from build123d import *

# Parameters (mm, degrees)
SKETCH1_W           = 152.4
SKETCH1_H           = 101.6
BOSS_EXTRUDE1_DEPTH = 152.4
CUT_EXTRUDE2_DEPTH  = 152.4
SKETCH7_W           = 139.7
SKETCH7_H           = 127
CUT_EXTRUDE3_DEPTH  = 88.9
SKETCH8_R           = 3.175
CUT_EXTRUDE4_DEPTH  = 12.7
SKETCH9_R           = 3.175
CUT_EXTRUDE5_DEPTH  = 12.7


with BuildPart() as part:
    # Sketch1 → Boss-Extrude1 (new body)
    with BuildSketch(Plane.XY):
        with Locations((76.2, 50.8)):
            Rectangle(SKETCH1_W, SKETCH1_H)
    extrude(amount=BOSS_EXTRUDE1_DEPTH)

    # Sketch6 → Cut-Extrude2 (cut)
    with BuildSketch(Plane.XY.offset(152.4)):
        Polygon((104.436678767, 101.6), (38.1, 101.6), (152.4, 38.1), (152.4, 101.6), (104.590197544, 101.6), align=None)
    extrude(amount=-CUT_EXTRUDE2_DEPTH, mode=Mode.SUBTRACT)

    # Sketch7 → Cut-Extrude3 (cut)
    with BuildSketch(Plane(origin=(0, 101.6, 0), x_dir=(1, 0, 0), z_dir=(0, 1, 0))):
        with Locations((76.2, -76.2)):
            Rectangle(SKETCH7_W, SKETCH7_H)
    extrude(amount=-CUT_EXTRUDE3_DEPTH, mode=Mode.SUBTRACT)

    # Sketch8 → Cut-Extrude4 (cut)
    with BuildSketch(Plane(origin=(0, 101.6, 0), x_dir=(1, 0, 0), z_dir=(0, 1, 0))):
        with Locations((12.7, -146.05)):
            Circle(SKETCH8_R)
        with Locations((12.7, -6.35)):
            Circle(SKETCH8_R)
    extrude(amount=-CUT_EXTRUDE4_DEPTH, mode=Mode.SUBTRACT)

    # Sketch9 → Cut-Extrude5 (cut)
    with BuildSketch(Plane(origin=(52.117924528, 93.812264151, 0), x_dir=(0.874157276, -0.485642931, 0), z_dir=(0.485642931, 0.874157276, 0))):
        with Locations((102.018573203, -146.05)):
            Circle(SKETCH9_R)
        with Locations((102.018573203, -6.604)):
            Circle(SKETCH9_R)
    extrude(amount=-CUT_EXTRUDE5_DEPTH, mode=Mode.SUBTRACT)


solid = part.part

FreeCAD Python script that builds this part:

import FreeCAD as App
import Part
import Sketcher
from FreeCAD import Vector
Q = App.Units.Quantity


def add_polygon(sketch, points):
    """Adds a closed chain of lines whose ends are joined by coincident constraints."""
    first, n = sketch.GeometryCount, len(points)
    for a, b in zip(points, points[1:] + points[:1]):
        sketch.addGeometry(Part.LineSegment(App.Vector(*a, 0), App.Vector(*b, 0)), False)
    for i in range(n):
        sketch.addConstraint(Sketcher.Constraint("Coincident", first + i, 2, first + (i + 1) % n, 1))

doc = App.newDocument("Part")
body = doc.addObject("PartDesign::Body", "Body")

# Sketch on XY plane
sketch1 = body.newObject("Sketcher::SketchObject", "Sketch")
sketch1.AttachmentSupport = (doc.getObject("XY_Plane"), [""])
sketch1.MapMode = "FlatFace"
add_polygon(sketch1, [(0, 101.6), (0, 0), (152.4, 0), (152.4, 101.6)])  # lines 0-3
sketch1.addConstraint([
    Sketcher.Constraint("Vertical", 0),
    Sketcher.Constraint("Horizontal", 1),
    Sketcher.Constraint("Vertical", 2),
    Sketcher.Constraint("Horizontal", 3),
    Sketcher.Constraint("Coincident", 0, 2, -1, 1),
    Sketcher.Constraint("DistanceX", 1, 1, 1, 2, Q("6 in")),
    Sketcher.Constraint("DistanceY", 0, 2, 0, 1, Q("4 in")),
])
pad1 = body.newObject("PartDesign::Pad", "Pad")
pad1.Profile = sketch1
pad1.Length = Q("6 in")

# Sketch on XY plane
sketch2 = body.newObject("Sketcher::SketchObject", "Sketch001")
sketch2.AttachmentSupport = (doc.getObject("XY_Plane"), [""])
sketch2.MapMode = "FlatFace"
sketch2.AttachmentOffset = App.Placement(Vector(0, 0, 6 * 25.4), App.Rotation())
add_polygon(sketch2, [(38.1, 101.6), (152.4, 38.1), (152.4, 101.6)])  # lines 0-2
sketch2.addConstraint([
    Sketcher.Constraint("Vertical", 1),
    Sketcher.Constraint("Horizontal", 2),
    Sketcher.Constraint("DistanceX", 2, 2, 2, 1, Q("4.5 in")),
    Sketcher.Constraint("DistanceY", 1, 1, 1, 2, Q("2.5 in")),
    Sketcher.Constraint("DistanceX", -1, 1, 0, 2, Q("6 in")),
    Sketcher.Constraint("DistanceY", -1, 1, 1, 2, Q("4 in")),
])
pocket1 = body.newObject("PartDesign::Pocket", "Pocket")
pocket1.Profile = sketch2
pocket1.Length = Q("6 in")

# Sketch on XZ plane
sketch3 = body.newObject("Sketcher::SketchObject", "Sketch002")
sketch3.AttachmentSupport = (doc.getObject("XZ_Plane"), [""])
sketch3.MapMode = "FlatFace"
sketch3.AttachmentOffset = App.Placement(Vector(0, 0, -4 * 25.4), App.Rotation())
add_polygon(sketch3, [(6.35, 12.7), (6.35, 139.7), (146.05, 139.7), (146.05, 12.7)])  # lines 0-3
sketch3.addConstraint([
    Sketcher.Constraint("Vertical", 0),
    Sketcher.Constraint("Horizontal", 1),
    Sketcher.Constraint("Vertical", 2),
    Sketcher.Constraint("Horizontal", 3),
    Sketcher.Constraint("DistanceY", 0, 1, 0, 2, Q("5 in")),
    Sketcher.Constraint("DistanceX", 1, 1, 1, 2, Q("5.5 in")),
    Sketcher.Constraint("DistanceY", -1, 1, 0, 2, Q("5.5 in")),
    Sketcher.Constraint("DistanceX", -1, 1, 0, 2, Q("0.25 in")),
])
pocket2 = body.newObject("PartDesign::Pocket", "Pocket001")
pocket2.Profile = sketch3
pocket2.Length = Q("3.5 in")
pocket2.Reversed = True

# Sketch on XZ plane
sketch4 = body.newObject("Sketcher::SketchObject", "Sketch003")
sketch4.AttachmentSupport = (doc.getObject("XZ_Plane"), [""])
sketch4.MapMode = "FlatFace"
sketch4.AttachmentOffset = App.Placement(Vector(0, 0, -4 * 25.4), App.Rotation())
sketch4.addGeometry([
    Part.Circle(Vector(12.7, 146.05, 0), Vector(0, 0, 1), 3.175),
    Part.Circle(Vector(12.7, 6.35, 0), Vector(0, 0, 1), 3.175),
], False)
sketch4.addConstraint([
    Sketcher.Constraint("Equal", 0, 1),
    Sketcher.Constraint("Vertical", 0, 3, 1, 3),
    Sketcher.Constraint("Diameter", 0, Q("0.25 in")),
    Sketcher.Constraint("DistanceX", -1, 1, 0, 3, Q("0.5 in")),
    Sketcher.Constraint("DistanceY", 1, 3, 0, 3, Q("5.5 in")),
    Sketcher.Constraint("DistanceY", -1, 1, 0, 3, Q("5.75 in")),
])
pocket3 = body.newObject("PartDesign::Pocket", "Pocket002")
pocket3.Profile = sketch4
pocket3.Length = Q("0.5 in")
pocket3.Reversed = True

# Sketch on an angled plane
sketch5 = body.newObject("Sketcher::SketchObject", "Sketch004")
sketch5.Placement = App.Placement(Vector(52.117925, 93.812264, 0), App.Rotation(Vector(0.874157276, -0.485642931, 0), Vector(0, 0, -1), Vector(0.485642931, 0.874157276, 0), "ZXY"))
sketch5.addGeometry([
    Part.Circle(Vector(102.018573, -146.05, 0), Vector(0, 0, 1), 3.175),
    Part.Circle(Vector(102.018573, -6.604, 0), Vector(0, 0, 1), 3.175),
], False)
sketch5.addConstraint([
    Sketcher.Constraint("Equal", 0, 1),
    Sketcher.Constraint("Vertical", 0, 3, 1, 3),
    Sketcher.Constraint("Diameter", 0, Q("0.25 in")),
    Sketcher.Constraint("DistanceY", 0, 3, -1, 1, Q("5.75 in")),
    Sketcher.Constraint("DistanceY", 1, 3, -1, 1, Q("0.26 in")),
    Sketcher.Constraint("DistanceX", -1, 1, 0, 3, 102.018573),
])
pocket4 = body.newObject("PartDesign::Pocket", "Pocket003")
pocket4.Profile = sketch5
pocket4.Length = Q("0.5 in")

doc.recompute()
